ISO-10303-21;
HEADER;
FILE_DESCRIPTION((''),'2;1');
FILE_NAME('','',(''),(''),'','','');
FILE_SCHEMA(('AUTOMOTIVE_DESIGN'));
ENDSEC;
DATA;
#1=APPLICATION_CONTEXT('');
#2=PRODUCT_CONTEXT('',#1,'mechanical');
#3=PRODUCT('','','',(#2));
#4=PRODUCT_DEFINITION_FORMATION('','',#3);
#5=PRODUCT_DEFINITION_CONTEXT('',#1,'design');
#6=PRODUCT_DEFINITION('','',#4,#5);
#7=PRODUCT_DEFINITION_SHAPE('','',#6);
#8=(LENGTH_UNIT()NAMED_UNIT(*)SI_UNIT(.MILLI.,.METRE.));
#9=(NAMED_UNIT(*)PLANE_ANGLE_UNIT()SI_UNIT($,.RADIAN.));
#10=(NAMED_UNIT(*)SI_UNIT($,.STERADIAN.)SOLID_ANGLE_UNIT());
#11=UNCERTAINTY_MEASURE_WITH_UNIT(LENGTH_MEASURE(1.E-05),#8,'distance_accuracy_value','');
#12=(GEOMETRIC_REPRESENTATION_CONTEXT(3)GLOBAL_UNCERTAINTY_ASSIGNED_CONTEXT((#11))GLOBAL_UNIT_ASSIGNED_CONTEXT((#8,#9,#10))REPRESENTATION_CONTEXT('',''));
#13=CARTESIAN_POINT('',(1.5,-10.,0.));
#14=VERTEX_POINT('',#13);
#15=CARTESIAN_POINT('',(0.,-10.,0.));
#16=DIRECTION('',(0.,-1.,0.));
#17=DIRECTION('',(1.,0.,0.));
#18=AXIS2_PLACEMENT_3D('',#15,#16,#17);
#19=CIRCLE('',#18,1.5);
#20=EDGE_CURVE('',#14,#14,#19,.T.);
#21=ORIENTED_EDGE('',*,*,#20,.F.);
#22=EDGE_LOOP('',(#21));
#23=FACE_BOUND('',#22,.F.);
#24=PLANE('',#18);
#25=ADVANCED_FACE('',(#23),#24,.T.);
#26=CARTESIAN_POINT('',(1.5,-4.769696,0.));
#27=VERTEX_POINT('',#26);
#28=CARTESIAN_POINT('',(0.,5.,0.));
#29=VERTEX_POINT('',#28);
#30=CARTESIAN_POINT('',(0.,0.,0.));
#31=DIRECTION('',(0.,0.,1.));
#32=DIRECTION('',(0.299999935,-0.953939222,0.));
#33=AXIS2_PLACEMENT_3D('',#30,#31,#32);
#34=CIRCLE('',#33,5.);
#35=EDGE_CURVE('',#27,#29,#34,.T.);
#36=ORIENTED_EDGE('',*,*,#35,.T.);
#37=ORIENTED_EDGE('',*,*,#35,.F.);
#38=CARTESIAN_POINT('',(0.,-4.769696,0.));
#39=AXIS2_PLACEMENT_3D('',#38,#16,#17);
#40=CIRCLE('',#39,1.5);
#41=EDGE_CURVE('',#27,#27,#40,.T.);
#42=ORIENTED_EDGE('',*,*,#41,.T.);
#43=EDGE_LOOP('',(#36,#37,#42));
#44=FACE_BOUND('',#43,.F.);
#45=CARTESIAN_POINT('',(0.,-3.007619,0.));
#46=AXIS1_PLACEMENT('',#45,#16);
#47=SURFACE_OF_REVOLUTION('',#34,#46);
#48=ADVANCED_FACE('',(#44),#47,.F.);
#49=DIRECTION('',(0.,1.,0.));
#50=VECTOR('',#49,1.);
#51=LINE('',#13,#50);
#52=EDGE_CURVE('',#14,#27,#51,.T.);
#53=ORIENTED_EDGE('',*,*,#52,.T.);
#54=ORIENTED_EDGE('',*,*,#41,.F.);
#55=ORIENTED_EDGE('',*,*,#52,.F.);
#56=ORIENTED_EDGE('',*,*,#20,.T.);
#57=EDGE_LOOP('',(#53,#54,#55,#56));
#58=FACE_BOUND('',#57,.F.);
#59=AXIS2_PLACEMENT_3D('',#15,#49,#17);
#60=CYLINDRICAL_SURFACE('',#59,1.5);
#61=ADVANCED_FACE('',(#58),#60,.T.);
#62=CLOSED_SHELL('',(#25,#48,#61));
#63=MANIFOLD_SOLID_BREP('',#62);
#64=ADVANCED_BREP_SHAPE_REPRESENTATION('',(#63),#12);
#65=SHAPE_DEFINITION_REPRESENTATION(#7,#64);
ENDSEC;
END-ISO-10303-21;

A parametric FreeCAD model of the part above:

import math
import FreeCAD as App
import Part
import Sketcher
Q = App.Units.Quantity

doc = App.newDocument("Part")
body = doc.addObject("PartDesign::Body", "Body")

sketch1 = doc.addObject("Sketcher::SketchObject", "Sketch")
body.addObject(sketch1)
sketch1.AttachmentSupport = (doc.XY_Plane, [""])
sketch1.MapMode = "FlatFace"
sketch1.addGeometry([
    Part.LineSegment(App.Vector(1.5, -10, 0), App.Vector(1.5, -4.769696, 0)),
    Part.ArcOfCircle(Part.Circle(App.Vector(0, 0, 0), App.Vector(0, 0, 1), 5), math.radians(-72.542401), math.radians(90.000004)),
    Part.LineSegment(App.Vector(0, 5, 0), App.Vector(0, -10, 0)),
    Part.LineSegment(App.Vector(0, -10, 0), App.Vector(1.5, -10, 0)),
], False)
sketch1.addConstraint([
    Sketcher.Constraint("Coincident", 0, 2, 1, 1),
    Sketcher.Constraint("Coincident", 1, 2, 2, 1),
    Sketcher.Constraint("Coincident", 2, 2, 3, 1),
    Sketcher.Constraint("Coincident", 3, 2, 0, 1),
    Sketcher.Constraint("Vertical", 0),
    Sketcher.Constraint("Vertical", 2),
    Sketcher.Constraint("Horizontal", 3),
    Sketcher.Constraint("Coincident", 1, 3, -1, 1),
    Sketcher.Constraint("PointOnObject", 1, 2, -2),
    Sketcher.Constraint("Radius", 1, Q("5 mm")),
    Sketcher.Constraint("DistanceY", 2, 2, 2, 1, Q("15 mm")),
    Sketcher.Constraint("DistanceX", 3, 1, 3, 2, Q("1.5 mm")),
])
revolution = doc.addObject("PartDesign::Revolution", "Revolution")
body.addObject(revolution)
revolution.Profile = sketch1
revolution.ReferenceAxis = (sketch1, ["V_Axis"])
revolution.Angle = 360

doc.recompute()
